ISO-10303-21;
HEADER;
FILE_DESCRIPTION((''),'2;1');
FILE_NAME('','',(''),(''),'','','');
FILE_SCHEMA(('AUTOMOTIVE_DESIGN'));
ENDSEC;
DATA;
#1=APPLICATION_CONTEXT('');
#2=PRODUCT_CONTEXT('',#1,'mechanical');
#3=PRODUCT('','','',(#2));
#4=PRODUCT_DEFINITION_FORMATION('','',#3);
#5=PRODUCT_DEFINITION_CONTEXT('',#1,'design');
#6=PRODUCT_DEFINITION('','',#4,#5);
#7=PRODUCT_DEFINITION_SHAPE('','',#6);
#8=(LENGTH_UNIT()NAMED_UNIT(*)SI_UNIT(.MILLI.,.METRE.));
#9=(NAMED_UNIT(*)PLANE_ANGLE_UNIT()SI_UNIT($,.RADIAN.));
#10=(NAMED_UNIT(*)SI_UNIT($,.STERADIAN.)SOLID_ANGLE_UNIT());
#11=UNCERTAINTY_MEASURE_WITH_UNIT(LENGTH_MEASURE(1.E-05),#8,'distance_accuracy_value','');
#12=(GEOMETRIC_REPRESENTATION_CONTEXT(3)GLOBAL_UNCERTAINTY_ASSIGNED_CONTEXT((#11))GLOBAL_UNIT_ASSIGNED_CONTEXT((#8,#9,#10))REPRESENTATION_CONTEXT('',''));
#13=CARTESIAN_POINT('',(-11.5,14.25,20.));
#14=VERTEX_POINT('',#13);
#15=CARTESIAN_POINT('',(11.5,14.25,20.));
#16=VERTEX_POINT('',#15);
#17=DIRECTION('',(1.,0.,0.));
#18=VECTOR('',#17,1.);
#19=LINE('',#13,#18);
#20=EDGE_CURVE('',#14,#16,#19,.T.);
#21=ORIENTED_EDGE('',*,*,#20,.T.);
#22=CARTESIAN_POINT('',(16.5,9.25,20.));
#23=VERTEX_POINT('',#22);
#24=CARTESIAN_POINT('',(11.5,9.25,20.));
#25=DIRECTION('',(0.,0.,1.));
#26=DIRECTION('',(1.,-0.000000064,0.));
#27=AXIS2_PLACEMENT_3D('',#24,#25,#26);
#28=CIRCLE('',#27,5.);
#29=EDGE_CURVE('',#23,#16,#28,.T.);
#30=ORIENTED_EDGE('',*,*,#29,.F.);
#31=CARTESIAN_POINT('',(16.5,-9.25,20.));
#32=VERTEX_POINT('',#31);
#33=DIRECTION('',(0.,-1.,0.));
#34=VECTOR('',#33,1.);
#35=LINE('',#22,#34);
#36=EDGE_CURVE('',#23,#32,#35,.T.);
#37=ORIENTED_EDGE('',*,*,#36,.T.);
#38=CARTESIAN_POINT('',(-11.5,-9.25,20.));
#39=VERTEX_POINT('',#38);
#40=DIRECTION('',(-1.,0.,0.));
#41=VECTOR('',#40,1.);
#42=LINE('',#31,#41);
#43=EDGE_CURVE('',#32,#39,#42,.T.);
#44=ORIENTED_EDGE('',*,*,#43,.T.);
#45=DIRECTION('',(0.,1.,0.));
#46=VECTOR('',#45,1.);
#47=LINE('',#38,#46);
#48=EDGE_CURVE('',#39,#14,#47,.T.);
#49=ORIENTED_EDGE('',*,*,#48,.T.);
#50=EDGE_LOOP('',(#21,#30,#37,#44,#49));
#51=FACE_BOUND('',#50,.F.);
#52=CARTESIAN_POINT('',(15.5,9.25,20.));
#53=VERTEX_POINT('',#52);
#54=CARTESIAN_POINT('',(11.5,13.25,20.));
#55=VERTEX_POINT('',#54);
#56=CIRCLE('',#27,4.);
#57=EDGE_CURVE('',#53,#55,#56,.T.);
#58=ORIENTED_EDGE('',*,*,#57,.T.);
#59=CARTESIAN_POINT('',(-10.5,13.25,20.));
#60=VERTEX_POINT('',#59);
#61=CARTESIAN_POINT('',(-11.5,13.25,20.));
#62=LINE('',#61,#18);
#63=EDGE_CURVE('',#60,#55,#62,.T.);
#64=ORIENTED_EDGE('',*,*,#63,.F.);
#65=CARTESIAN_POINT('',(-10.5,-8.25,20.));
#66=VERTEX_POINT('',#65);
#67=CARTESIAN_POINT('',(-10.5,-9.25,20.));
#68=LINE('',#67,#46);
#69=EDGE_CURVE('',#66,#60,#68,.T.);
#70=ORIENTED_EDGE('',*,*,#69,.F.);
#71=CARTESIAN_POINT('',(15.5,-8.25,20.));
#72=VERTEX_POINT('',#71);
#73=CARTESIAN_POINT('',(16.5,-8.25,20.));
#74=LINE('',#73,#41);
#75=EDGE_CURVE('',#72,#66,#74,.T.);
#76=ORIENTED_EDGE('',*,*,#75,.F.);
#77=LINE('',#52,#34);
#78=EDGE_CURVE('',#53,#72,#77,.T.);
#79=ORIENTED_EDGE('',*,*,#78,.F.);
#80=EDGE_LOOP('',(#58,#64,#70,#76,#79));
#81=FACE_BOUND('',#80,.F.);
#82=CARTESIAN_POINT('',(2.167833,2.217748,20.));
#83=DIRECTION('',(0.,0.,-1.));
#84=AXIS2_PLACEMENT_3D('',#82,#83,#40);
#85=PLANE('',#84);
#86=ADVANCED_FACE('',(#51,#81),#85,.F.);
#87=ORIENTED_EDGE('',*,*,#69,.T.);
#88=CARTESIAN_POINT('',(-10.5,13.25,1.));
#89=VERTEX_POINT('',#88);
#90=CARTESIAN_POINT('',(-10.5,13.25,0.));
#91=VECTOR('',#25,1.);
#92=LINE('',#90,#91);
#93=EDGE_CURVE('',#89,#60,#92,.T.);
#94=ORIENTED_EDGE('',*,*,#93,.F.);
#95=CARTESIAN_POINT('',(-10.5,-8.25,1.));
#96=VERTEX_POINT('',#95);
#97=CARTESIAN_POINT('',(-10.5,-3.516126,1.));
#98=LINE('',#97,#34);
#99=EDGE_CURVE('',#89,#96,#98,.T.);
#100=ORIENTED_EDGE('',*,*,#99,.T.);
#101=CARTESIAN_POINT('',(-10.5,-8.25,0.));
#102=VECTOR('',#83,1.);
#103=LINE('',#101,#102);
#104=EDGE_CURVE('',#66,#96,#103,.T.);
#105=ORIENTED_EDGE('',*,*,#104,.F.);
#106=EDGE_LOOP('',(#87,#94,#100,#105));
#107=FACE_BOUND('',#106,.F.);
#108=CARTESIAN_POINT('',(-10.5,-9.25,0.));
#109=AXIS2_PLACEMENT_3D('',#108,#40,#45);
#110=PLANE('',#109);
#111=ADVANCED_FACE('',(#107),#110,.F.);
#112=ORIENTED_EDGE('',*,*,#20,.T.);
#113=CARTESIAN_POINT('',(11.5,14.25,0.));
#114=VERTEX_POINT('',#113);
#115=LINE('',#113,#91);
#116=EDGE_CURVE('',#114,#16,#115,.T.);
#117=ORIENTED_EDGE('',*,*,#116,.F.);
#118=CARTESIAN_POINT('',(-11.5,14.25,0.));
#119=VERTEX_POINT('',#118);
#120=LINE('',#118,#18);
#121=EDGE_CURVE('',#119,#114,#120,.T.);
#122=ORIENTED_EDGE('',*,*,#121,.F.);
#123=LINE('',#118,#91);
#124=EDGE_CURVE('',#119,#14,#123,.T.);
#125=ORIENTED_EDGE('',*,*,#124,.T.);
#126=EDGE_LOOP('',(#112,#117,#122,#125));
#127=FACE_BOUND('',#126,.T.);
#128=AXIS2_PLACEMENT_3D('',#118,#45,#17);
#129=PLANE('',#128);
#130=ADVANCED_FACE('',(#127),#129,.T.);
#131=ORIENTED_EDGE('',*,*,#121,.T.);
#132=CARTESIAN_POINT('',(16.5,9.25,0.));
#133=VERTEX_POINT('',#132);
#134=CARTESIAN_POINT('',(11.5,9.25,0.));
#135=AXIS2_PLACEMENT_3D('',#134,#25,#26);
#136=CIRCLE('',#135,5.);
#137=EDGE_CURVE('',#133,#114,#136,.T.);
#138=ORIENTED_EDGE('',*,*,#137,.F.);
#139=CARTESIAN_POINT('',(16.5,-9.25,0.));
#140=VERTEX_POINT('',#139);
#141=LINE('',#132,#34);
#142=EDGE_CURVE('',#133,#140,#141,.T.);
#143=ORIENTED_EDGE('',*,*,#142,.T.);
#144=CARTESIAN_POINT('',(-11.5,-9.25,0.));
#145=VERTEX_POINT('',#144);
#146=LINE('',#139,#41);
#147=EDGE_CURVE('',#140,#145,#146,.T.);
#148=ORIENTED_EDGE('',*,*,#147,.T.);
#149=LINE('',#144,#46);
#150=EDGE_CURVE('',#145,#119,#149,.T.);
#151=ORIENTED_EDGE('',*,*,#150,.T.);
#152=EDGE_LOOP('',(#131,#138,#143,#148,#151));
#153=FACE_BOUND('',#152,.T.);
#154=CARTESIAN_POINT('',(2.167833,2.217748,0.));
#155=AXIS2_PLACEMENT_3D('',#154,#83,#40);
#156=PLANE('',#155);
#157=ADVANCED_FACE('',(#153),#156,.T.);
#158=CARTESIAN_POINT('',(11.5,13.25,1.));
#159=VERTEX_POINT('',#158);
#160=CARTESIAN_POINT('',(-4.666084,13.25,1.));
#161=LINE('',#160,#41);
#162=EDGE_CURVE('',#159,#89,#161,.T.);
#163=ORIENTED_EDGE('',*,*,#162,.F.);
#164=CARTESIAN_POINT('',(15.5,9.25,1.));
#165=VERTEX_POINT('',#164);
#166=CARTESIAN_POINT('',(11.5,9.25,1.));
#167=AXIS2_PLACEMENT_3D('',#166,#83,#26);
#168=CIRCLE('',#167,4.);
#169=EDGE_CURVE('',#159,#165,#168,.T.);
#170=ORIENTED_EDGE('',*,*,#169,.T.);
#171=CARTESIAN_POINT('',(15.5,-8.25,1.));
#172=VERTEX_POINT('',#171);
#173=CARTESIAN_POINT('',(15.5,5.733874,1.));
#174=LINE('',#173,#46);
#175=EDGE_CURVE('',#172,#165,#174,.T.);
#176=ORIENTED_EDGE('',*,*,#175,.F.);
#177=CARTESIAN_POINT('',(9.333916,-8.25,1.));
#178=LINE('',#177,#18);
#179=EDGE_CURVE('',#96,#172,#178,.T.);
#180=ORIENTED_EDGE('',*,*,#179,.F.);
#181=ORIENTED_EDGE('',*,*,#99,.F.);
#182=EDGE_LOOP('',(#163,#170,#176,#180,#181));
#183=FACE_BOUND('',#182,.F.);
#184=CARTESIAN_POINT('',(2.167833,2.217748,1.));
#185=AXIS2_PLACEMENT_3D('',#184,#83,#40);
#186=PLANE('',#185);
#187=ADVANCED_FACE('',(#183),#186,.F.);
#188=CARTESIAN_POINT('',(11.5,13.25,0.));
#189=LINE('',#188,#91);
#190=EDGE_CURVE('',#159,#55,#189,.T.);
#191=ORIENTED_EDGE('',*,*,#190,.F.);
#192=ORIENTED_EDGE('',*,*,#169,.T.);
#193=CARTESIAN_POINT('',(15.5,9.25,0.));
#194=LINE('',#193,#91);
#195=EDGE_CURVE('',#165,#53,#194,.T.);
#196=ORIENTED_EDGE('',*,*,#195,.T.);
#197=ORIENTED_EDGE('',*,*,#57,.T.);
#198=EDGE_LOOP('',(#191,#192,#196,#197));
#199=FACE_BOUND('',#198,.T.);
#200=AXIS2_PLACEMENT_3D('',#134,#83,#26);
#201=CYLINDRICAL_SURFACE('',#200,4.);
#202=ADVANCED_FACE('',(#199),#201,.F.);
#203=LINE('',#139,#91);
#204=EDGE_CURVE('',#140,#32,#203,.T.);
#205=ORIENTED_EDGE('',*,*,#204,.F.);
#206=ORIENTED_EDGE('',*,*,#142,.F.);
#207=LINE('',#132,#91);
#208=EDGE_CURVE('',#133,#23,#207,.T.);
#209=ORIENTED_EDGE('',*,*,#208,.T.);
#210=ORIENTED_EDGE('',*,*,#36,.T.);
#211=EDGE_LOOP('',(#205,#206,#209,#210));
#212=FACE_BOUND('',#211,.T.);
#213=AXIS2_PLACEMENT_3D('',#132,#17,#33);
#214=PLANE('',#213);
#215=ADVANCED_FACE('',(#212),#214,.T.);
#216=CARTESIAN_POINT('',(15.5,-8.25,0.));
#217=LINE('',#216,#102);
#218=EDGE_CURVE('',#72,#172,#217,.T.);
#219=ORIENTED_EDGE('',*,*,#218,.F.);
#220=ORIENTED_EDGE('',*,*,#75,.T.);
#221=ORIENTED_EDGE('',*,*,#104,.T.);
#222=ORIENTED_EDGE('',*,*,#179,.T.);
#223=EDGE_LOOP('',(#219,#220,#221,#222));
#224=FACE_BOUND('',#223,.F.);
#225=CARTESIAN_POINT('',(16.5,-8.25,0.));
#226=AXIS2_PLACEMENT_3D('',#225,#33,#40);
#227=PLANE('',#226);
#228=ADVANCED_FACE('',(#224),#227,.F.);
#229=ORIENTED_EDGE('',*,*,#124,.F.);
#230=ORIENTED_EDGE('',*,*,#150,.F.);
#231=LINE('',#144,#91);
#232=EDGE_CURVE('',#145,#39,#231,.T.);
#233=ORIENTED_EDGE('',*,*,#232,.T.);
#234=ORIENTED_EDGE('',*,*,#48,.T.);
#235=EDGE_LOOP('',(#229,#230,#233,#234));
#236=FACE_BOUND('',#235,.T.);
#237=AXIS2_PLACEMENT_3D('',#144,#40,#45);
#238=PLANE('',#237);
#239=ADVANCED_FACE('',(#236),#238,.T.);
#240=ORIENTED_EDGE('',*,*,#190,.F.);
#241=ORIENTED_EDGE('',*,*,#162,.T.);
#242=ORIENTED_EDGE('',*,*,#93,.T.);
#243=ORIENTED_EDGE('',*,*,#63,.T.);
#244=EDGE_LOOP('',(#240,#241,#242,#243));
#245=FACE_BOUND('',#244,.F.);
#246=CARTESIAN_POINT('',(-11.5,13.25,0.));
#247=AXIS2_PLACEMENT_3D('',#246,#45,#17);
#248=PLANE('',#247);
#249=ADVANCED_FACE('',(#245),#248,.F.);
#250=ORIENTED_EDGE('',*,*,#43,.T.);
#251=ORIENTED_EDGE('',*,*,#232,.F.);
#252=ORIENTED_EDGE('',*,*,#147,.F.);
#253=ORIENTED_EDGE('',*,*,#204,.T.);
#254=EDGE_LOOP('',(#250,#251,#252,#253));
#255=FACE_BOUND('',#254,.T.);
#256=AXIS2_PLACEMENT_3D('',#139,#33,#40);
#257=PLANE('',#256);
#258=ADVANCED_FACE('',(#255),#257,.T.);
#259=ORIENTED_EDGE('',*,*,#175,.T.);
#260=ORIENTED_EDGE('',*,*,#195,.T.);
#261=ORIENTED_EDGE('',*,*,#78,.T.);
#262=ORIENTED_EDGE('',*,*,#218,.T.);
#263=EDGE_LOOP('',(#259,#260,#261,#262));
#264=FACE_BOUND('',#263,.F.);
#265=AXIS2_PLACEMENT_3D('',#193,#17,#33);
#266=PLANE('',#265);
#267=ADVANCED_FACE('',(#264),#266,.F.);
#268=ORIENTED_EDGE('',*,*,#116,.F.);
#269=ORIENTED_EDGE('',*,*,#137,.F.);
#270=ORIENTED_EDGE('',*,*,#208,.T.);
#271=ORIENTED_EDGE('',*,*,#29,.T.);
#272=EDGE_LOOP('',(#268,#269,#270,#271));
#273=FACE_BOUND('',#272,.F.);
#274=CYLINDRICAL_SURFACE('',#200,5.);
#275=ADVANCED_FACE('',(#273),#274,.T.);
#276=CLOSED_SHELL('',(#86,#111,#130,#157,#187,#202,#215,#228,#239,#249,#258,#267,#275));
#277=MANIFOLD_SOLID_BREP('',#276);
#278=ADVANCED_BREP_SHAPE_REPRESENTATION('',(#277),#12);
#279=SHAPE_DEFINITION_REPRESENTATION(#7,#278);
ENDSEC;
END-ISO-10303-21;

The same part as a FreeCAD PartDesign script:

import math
import FreeCAD as App
import Part
import Sketcher
Q = App.Units.Quantity


def faces_at(feature, points):
    """Names of the faces that lie closest to the given points."""
    faces = feature.Shape.Faces
    near = lambda p: min(range(len(faces)), key=lambda i: faces[i].distToShape(Part.Vertex(*p))[0])
    return sorted({f"Face{near(p) + 1}" for p in points})

doc = App.newDocument("Part")
body = doc.addObject("PartDesign::Body", "Body")

# Sketch on XY plane
sketch1 = body.newObject("Sketcher::SketchObject", "Sketch")
sketch1.AttachmentSupport = (doc.getObject("XY_Plane"), [""])
sketch1.MapMode = "FlatFace"
sketch1.addGeometry(Part.LineSegment(App.Vector(11.5, 14.2, 0), App.Vector(-11.5, 14.2, 0)), False)
sketch1.addGeometry(Part.LineSegment(App.Vector(-11.5, 14.2, 0), App.Vector(-11.5, -9.2, 0)), False)
sketch1.addGeometry(Part.LineSegment(App.Vector(-11.5, -9.2, 0), App.Vector(16.5, -9.2, 0)), False)
sketch1.addGeometry(Part.LineSegment(App.Vector(16.5, -9.2, 0), App.Vector(16.5, 9.2, 0)), False)
sketch1.addGeometry(Part.ArcOfCircle(Part.Circle(App.Vector(11.5, 9.3, 0), App.Vector(0, 0, 1), 5), math.radians(0), math.radians(90)), False)
sketch1.addConstraint(Sketcher.Constraint("Coincident", 0, 2, 1, 1))
sketch1.addConstraint(Sketcher.Constraint("Coincident", 1, 2, 2, 1))
sketch1.addConstraint(Sketcher.Constraint("Coincident", 2, 2, 3, 1))
sketch1.addConstraint(Sketcher.Constraint("Tangent", 3, 2, 4, 1))
sketch1.addConstraint(Sketcher.Constraint("Tangent", 4, 2, 0, 1))
sketch1.addConstraint(Sketcher.Constraint("Horizontal", 0))
sketch1.addConstraint(Sketcher.Constraint("Vertical", 1))
sketch1.addConstraint(Sketcher.Constraint("Horizontal", 2))
sketch1.addConstraint(Sketcher.Constraint("Vertical", 3))
sketch1.addConstraint(Sketcher.Constraint("Radius", 4, Q("5 mm")))
sketch1.addConstraint(Sketcher.Constraint("DistanceX", 0, 2, 0, 1, Q("23 mm")))
sketch1.addConstraint(Sketcher.Constraint("DistanceY", 1, 2, 1, 1, Q("23.5 mm")))
sketch1.addConstraint(Sketcher.Constraint("DistanceX", -1, 1, 4, 3, Q("11.5 mm")))
sketch1.addConstraint(Sketcher.Constraint("DistanceY", -1, 1, 4, 3, Q("9.25 mm")))
pad1 = body.newObject("PartDesign::Pad", "Pad")
pad1.Profile = sketch1
pad1.Length = 20
doc.recompute()

thickness = body.newObject("PartDesign::Thickness", "Thickness")
thickness.Base = (pad1, faces_at(pad1, [(2.5, 2.5, 20)]))
thickness.Value = 1
thickness.Reversed = True
thickness.Join = "Arc"

doc.recompute()
